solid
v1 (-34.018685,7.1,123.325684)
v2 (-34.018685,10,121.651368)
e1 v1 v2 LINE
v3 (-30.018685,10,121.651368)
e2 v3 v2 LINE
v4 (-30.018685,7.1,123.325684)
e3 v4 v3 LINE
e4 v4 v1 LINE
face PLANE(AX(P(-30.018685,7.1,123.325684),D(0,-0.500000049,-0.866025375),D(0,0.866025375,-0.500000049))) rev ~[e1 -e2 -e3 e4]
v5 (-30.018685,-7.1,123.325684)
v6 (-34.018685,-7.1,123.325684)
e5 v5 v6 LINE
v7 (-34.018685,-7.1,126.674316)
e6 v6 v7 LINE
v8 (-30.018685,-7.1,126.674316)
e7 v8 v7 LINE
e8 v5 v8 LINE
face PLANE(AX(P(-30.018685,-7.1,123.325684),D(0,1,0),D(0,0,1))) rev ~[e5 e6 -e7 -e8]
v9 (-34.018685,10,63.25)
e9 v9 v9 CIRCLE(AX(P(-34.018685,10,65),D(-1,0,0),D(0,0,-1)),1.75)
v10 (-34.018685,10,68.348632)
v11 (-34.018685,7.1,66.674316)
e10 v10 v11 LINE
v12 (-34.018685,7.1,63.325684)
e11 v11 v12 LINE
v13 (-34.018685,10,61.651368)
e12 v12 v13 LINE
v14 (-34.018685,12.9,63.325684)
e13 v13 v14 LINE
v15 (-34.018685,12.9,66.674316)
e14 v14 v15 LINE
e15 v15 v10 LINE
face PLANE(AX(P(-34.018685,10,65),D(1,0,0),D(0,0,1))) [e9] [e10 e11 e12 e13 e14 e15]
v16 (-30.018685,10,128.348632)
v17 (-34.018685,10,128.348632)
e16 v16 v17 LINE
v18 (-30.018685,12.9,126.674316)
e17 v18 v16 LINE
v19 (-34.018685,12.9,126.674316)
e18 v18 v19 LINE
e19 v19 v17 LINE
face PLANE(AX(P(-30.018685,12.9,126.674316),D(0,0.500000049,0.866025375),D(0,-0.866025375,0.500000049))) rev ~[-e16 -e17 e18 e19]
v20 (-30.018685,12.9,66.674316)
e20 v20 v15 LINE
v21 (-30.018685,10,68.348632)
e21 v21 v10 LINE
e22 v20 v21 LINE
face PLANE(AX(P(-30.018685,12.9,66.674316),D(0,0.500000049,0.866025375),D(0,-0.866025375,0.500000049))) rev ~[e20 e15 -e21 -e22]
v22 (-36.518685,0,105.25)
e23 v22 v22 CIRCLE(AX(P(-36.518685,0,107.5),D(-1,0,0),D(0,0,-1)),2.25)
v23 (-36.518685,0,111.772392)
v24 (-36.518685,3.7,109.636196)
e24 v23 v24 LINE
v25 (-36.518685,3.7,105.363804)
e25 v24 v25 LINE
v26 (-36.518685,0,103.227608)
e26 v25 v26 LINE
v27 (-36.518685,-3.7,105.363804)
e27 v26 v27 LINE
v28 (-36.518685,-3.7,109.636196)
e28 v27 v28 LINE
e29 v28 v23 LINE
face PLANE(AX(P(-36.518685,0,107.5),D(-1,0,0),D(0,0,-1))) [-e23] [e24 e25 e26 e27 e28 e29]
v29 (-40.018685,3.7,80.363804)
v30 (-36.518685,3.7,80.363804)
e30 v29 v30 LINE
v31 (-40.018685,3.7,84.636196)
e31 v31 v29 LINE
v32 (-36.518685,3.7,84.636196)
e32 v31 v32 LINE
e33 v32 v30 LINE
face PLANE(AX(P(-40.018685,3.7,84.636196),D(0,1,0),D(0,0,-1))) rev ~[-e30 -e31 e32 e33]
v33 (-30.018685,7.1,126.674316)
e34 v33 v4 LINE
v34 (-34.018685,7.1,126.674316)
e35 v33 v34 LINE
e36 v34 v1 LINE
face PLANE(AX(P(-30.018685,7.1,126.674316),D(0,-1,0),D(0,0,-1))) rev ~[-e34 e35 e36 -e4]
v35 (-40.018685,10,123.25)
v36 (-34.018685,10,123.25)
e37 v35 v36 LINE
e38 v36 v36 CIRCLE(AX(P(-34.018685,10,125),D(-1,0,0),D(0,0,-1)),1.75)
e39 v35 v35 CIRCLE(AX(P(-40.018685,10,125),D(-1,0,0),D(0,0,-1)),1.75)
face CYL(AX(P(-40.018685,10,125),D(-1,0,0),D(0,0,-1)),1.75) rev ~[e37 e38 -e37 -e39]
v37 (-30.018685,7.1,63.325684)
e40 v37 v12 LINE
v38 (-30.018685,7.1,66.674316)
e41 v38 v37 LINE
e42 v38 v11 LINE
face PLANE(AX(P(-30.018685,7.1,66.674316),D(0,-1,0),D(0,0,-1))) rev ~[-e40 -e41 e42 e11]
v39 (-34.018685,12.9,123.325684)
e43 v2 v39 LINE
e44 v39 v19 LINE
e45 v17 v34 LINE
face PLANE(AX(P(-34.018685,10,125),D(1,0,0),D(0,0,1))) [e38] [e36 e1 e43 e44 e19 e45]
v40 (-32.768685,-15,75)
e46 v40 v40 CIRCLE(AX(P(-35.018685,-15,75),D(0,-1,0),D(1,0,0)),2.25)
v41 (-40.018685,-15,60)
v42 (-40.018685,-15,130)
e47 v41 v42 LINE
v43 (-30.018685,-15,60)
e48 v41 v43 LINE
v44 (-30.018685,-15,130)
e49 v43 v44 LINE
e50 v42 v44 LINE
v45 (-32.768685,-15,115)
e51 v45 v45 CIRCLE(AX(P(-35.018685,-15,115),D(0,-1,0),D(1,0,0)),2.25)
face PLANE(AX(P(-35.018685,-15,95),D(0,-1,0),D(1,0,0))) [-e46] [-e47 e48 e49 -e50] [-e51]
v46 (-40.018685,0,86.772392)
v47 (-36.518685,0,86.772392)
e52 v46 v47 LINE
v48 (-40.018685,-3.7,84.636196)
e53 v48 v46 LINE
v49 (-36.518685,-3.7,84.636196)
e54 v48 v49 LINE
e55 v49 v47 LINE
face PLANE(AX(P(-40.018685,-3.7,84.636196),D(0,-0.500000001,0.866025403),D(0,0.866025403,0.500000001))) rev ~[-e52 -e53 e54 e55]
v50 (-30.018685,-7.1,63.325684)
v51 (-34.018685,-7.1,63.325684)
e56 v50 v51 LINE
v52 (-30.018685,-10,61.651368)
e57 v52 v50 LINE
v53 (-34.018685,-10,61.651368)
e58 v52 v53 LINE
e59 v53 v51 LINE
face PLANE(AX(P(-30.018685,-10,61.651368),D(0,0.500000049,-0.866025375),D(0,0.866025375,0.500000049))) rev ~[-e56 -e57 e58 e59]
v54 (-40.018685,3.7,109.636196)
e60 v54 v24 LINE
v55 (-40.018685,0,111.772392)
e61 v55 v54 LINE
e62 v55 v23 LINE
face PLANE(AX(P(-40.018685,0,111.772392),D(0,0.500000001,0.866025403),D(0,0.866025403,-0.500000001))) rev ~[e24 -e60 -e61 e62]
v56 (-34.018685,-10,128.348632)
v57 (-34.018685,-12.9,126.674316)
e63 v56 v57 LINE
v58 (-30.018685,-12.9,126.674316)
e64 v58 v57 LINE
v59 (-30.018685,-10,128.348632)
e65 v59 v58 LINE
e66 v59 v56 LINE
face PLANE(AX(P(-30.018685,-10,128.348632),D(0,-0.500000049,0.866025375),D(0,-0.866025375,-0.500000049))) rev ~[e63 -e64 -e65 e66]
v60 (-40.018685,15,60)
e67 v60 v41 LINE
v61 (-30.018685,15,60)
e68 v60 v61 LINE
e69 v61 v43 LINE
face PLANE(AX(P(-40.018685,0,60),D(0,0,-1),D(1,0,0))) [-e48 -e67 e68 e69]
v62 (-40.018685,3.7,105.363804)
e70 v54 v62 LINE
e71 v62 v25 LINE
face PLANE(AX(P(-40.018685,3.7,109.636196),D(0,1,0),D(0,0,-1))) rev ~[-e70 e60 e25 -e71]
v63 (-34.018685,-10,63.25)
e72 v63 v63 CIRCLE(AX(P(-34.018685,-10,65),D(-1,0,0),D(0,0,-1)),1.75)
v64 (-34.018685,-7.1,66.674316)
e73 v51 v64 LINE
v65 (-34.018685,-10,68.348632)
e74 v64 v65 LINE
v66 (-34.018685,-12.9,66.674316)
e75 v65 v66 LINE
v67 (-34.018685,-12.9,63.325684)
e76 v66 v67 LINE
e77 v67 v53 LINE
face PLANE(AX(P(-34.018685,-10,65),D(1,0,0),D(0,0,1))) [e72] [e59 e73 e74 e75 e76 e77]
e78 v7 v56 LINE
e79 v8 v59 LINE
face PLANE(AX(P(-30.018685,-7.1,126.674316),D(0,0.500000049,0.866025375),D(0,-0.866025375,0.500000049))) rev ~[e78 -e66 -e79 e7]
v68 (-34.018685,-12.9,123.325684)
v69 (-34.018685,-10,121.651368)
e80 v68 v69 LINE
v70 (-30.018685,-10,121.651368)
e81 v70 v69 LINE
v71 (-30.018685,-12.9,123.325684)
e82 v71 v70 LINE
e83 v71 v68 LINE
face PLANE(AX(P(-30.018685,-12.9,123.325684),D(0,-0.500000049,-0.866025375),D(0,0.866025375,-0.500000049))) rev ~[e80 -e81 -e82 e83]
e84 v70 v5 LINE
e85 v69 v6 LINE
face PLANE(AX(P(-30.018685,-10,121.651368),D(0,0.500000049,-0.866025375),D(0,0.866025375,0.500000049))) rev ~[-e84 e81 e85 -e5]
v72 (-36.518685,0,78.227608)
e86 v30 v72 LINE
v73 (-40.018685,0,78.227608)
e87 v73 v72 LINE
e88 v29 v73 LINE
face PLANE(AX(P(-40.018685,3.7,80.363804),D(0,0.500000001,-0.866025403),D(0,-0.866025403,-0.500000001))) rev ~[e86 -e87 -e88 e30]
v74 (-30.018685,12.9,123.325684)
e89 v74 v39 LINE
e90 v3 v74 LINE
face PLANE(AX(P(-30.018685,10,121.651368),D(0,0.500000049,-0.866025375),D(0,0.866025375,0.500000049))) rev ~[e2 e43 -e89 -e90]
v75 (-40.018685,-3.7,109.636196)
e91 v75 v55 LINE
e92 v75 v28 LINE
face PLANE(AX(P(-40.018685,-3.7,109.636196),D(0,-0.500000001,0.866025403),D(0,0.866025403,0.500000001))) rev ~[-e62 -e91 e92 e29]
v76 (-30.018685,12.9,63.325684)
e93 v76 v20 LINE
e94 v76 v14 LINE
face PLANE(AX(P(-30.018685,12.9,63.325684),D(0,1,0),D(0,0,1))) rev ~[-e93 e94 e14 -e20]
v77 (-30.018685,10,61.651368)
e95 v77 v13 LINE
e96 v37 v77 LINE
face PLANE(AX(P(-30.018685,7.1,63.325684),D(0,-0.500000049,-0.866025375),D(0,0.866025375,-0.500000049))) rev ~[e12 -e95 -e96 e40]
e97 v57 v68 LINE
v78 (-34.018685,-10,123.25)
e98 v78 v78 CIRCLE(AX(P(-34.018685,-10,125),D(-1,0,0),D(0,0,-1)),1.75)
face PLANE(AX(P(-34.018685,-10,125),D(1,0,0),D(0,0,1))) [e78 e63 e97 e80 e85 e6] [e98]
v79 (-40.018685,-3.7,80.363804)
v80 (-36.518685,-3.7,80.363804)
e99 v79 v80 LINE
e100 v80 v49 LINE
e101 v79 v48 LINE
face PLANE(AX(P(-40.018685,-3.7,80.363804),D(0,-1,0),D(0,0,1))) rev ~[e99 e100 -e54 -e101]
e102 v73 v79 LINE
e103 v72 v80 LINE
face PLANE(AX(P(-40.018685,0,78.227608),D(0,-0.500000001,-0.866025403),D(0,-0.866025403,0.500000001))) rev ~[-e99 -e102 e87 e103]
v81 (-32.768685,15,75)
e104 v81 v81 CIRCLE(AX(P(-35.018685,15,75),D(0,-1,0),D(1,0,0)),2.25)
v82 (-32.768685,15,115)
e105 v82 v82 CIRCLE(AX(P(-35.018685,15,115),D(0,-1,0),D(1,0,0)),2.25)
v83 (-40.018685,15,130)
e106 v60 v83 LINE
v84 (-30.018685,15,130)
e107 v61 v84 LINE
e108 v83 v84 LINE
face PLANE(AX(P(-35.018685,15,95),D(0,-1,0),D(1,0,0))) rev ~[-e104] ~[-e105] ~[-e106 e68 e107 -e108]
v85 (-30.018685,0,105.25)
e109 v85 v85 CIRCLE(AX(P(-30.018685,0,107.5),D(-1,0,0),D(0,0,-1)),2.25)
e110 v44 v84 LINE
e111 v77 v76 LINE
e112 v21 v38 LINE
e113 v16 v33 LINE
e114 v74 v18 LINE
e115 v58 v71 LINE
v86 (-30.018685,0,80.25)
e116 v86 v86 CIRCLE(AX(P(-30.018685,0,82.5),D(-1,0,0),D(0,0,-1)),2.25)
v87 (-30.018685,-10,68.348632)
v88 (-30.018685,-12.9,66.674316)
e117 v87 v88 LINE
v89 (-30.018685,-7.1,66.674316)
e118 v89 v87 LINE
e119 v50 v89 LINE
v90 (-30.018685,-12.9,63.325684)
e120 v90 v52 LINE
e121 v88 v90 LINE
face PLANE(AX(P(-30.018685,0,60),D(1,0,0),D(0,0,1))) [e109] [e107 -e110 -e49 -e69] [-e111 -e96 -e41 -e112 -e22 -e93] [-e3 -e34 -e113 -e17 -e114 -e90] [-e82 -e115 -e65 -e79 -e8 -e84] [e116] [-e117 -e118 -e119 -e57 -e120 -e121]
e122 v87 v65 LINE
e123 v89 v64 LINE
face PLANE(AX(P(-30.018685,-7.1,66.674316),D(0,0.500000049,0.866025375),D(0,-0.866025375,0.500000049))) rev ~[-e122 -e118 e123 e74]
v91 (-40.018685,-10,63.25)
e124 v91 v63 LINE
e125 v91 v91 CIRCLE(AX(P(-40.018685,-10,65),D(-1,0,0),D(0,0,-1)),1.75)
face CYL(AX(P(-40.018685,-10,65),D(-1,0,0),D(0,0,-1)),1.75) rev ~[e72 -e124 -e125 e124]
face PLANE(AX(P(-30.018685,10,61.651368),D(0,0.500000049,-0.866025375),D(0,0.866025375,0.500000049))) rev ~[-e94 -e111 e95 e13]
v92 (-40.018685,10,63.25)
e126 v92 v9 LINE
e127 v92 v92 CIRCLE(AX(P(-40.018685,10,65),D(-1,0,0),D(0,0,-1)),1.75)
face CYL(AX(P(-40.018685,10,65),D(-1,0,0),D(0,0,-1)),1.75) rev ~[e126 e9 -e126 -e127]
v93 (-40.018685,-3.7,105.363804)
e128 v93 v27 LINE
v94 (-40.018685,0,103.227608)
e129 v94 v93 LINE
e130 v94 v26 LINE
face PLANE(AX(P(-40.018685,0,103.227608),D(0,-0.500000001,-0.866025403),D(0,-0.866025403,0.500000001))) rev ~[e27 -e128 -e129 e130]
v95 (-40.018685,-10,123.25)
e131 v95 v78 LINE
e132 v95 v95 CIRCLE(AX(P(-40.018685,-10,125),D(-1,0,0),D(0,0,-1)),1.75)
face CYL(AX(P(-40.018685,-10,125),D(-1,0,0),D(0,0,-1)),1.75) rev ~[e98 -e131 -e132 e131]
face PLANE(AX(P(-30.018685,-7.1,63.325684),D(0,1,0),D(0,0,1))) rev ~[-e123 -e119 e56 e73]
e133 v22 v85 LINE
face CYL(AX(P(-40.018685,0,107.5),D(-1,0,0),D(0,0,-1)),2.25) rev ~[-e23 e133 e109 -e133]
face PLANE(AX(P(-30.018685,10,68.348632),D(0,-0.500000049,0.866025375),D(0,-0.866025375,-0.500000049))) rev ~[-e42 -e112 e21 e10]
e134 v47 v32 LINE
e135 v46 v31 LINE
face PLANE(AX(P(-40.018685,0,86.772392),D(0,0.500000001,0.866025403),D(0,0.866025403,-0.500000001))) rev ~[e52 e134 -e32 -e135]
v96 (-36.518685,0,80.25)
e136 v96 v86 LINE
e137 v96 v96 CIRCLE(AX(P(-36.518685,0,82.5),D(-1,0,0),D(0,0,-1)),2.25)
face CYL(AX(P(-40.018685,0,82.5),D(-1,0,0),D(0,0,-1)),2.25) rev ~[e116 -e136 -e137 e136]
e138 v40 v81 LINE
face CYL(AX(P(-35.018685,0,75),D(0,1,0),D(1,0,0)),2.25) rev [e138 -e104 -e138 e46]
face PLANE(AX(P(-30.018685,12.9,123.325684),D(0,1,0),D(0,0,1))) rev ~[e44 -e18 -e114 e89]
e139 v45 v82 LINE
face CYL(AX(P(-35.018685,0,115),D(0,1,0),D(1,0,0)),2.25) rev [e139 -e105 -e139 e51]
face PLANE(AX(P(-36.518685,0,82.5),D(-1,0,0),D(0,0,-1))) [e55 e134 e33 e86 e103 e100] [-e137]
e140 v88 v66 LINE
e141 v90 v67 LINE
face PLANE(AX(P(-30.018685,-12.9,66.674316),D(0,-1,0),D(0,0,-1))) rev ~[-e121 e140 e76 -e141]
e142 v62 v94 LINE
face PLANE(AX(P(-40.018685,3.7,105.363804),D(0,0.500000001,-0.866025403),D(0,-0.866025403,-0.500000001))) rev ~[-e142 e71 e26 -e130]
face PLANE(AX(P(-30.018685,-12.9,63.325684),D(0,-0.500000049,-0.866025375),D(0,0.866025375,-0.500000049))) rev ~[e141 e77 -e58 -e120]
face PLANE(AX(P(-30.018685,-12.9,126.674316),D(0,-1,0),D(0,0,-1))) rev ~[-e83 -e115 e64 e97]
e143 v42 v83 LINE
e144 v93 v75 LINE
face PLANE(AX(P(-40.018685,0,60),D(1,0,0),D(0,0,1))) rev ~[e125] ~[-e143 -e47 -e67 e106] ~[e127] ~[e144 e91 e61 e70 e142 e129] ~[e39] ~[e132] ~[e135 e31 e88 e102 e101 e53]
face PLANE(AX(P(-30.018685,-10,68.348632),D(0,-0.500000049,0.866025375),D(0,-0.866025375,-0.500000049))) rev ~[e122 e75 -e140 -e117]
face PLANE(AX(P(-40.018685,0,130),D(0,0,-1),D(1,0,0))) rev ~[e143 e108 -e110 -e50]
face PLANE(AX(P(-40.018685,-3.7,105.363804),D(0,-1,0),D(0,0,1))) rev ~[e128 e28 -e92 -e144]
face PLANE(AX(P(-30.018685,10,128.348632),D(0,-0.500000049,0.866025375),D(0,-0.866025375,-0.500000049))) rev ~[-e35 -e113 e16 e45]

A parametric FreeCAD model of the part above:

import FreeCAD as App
import Part
import Sketcher

V = App.Vector
Q = App.Units.Quantity


def add_polygon(sketch, points):
    """Adds a closed chain of lines whose ends are joined by coincident constraints."""
    first, n = sketch.GeometryCount, len(points)
    for a, b in zip(points, points[1:] + points[:1]):
        sketch.addGeometry(Part.LineSegment(App.Vector(*a, 0), App.Vector(*b, 0)), False)
    for i in range(n):
        sketch.addConstraint(Sketcher.Constraint("Coincident", first + i, 2, first + (i + 1) % n, 1))

doc = App.newDocument("Part")
body = doc.addObject("PartDesign::Body", "Body")

sketch1 = body.newObject("Sketcher::SketchObject", "Sketch")
sketch1.AttachmentSupport = (doc.getObject("XZ_Plane"), [""])
sketch1.MapMode = "FlatFace"
add_polygon(sketch1, [(-5, 40), (-5, -30), (5, -30), (5, 40)])
sketch1.addGeometry(Part.Circle(V(0, -15, 0), V(0, 0, 1), 2.2), False)
sketch1.addGeometry(Part.Circle(V(0, 25, 0), V(0, 0, 1), 2.2), False)
sketch1.addConstraint(Sketcher.Constraint("Vertical", 0))
sketch1.addConstraint(Sketcher.Constraint("Horizontal", 1))
sketch1.addConstraint(Sketcher.Constraint("Vertical", 2))
sketch1.addConstraint(Sketcher.Constraint("Horizontal", 3))
sketch1.addConstraint(Sketcher.Constraint("Equal", 4, 5))
sketch1.addConstraint(Sketcher.Constraint("Vertical", 4, 3, 5, 3))
sketch1.addConstraint(Sketcher.Constraint("Diameter", 4, Q("4.5 mm")))
sketch1.addConstraint(Sketcher.Constraint("DistanceX", 1, 1, 1, 2, Q("10 mm")))
sketch1.addConstraint(Sketcher.Constraint("DistanceY", 0, 2, 0, 1, Q("70 mm")))
sketch1.addConstraint(Sketcher.Constraint("DistanceY", 4, 3, -1, 1, Q("15 mm")))
sketch1.addConstraint(Sketcher.Constraint("DistanceY", -1, 1, 5, 3, Q("25 mm")))
sketch1.addConstraint(Sketcher.Constraint("DistanceY", 0, 2, -1, 1, Q("30 mm")))
sketch1.addConstraint(Sketcher.Constraint("DistanceX", 0, 2, 4, 3, Q("5 mm")))
sketch1.addConstraint(Sketcher.Constraint("DistanceX", 4, 3, -1, 1, Q("0.018685 mm")))
pad1 = body.newObject("PartDesign::Pad", "Pad")
pad1.Profile = sketch1
pad1.Length = 30
pad1.Midplane = True

sketch2 = body.newObject("Sketcher::SketchObject", "Sketch001")
sketch2.AttachmentSupport = (doc.getObject("YZ_Plane"), [""])
sketch2.MapMode = "FlatFace"
sketch2.AttachmentOffset = App.Placement(V(0, 0, -5.018685), App.Rotation())
sketch2.addGeometry(Part.Circle(V(0, 17.5, 0), V(0, 0, 1), 2.2), False)
sketch2.addGeometry(Part.Circle(V(0, -7.5, 0), V(0, 0, 1), 2.2), False)
sketch2.addGeometry(Part.Circle(V(-10, 35, 0), V(0, 0, 1), 1.8), False)
sketch2.addGeometry(Part.Circle(V(10, 35, 0), V(0, 0, 1), 1.8), False)
sketch2.addGeometry(Part.Circle(V(-10, -25, 0), V(0, 0, 1), 1.8), False)
sketch2.addGeometry(Part.Circle(V(10, -25, 0), V(0, 0, 1), 1.8), False)
sketch2.addConstraint(Sketcher.Constraint("Equal", 0, 1))
sketch2.addConstraint(Sketcher.Constraint("Equal", 2, 3))
sketch2.addConstraint(Sketcher.Constraint("Equal", 3, 4))
sketch2.addConstraint(Sketcher.Constraint("Equal", 4, 5))
sketch2.addConstraint(Sketcher.Constraint("Symmetric", 2, 3, 3, 3, -2))
sketch2.addConstraint(Sketcher.Constraint("Symmetric", 4, 3, 5, 3, -2))
sketch2.addConstraint(Sketcher.Constraint("PointOnObject", 0, 3, -2))
sketch2.addConstraint(Sketcher.Constraint("PointOnObject", 1, 3, -2))
sketch2.addConstraint(Sketcher.Constraint("Vertical", 2, 3, 4, 3))
sketch2.addConstraint(Sketcher.Constraint("Diameter", 0, Q("4.5 mm")))
sketch2.addConstraint(Sketcher.Constraint("Diameter", 2, Q("3.5 mm")))
sketch2.addConstraint(Sketcher.Constraint("DistanceX", 2, 3, -1, 1, Q("10 mm")))
sketch2.addConstraint(Sketcher.Constraint("DistanceY", -1, 1, 2, 3, Q("35 mm")))
sketch2.addConstraint(Sketcher.Constraint("DistanceY", 4, 3, -1, 1, Q("25 mm")))
sketch2.addConstraint(Sketcher.Constraint("DistanceY", 1, 3, 0, 3, Q("25 mm")))
sketch2.addConstraint(Sketcher.Constraint("DistanceY", -1, 1, 0, 3, Q("17.5 mm")))
pocket1 = body.newObject("PartDesign::Pocket", "Pocket")
pocket1.Profile = sketch2
pocket1.Length = 25
pocket1.Reversed = True

sketch3 = body.newObject("Sketcher::SketchObject", "Sketch002")
sketch3.AttachmentSupport = (doc.getObject("YZ_Plane"), [""])
sketch3.MapMode = "FlatFace"
sketch3.AttachmentOffset = App.Placement(V(0, 0, -5.018685), App.Rotation())
add_polygon(sketch3, [(-3.7, 15.4), (-3.7, 19.6), (0, 21.8), (3.7, 19.6), (3.7, 15.4), (0, 13.2)])
add_polygon(sketch3, [(-3.7, -9.6), (-3.7, -5.4), (0, -3.2), (3.7, -5.4), (3.7, -9.6), (0, -11.8)])
sketch3.addConstraint(Sketcher.Constraint("Vertical", 0))
sketch3.addConstraint(Sketcher.Constraint("Vertical", 3))
sketch3.addConstraint(Sketcher.Constraint("Vertical", 6))
sketch3.addConstraint(Sketcher.Constraint("Vertical", 9))
sketch3.addConstraint(Sketcher.Constraint("Symmetric", 0, 2, 2, 2, -2))
sketch3.addConstraint(Sketcher.Constraint("Symmetric", 6, 2, 8, 2, -2))
sketch3.addConstraint(Sketcher.Constraint("PointOnObject", 1, 2, -2))
sketch3.addConstraint(Sketcher.Constraint("PointOnObject", 4, 2, -2))
sketch3.addConstraint(Sketcher.Constraint("PointOnObject", 7, 2, -2))
sketch3.addConstraint(Sketcher.Constraint("PointOnObject", 10, 2, -2))
sketch3.addConstraint(Sketcher.Constraint("Parallel", 1, 4))
sketch3.addConstraint(Sketcher.Constraint("Parallel", 2, 5))
sketch3.addConstraint(Sketcher.Constraint("Parallel", 4, 7))
sketch3.addConstraint(Sketcher.Constraint("Parallel", 7, 10))
sketch3.addConstraint(Sketcher.Constraint("Parallel", 8, 11))
sketch3.addConstraint(Sketcher.Constraint("Vertical", 5, 2, 6, 2))
sketch3.addConstraint(Sketcher.Constraint("Equal", 3, 6))
sketch3.addConstraint(Sketcher.Constraint("Angle", 1, Q("30 deg")))
sketch3.addConstraint(Sketcher.Constraint("DistanceY", 6, 2, 0, 2, Q("25 mm")))
sketch3.addConstraint(Sketcher.Constraint("DistanceX", 0, 2, -1, 1, Q("3.7 mm")))
sketch3.addConstraint(Sketcher.Constraint("DistanceY", 0, 1, 0, 2, Q("4.272392 mm")))
sketch3.addConstraint(Sketcher.Constraint("DistanceY", -1, 1, 1, 2, Q("21.772392 mm")))
pocket2 = body.newObject("PartDesign::Pocket", "Pocket001")
pocket2.Profile = sketch3
pocket2.Length = 3.5
pocket2.Reversed = True

sketch4 = body.newObject("Sketcher::SketchObject", "Sketch003")
sketch4.AttachmentSupport = (doc.getObject("YZ_Plane"), [""])
sketch4.MapMode = "FlatFace"
sketch4.AttachmentOffset = App.Placement(V(0, 0, 4.981315), App.Rotation())
add_polygon(sketch4, [(-12.9, 36.7), (-12.9, 33.3), (-10, 31.7), (-7.1, 33.3), (-7.1, 36.7), (-10, 38.3)])
add_polygon(sketch4, [(7.1, 36.7), (7.1, 33.3), (10, 31.7), (12.9, 33.3), (12.9, 36.7), (10, 38.3)])
add_polygon(sketch4, [(7.1, -23.3), (7.1, -26.7), (10, -28.3), (12.9, -26.7), (12.9, -23.3), (10, -21.7)])
add_polygon(sketch4, [(-10, -21.7), (-12.9, -23.3), (-12.9, -26.7), (-10, -28.3), (-7.1, -26.7), (-7.1, -23.3)])
sketch4.addConstraint(Sketcher.Constraint("Vertical", 0))
sketch4.addConstraint(Sketcher.Constraint("Vertical", 3))
sketch4.addConstraint(Sketcher.Constraint("Vertical", 6))
sketch4.addConstraint(Sketcher.Constraint("Vertical", 9))
sketch4.addConstraint(Sketcher.Constraint("Vertical", 12))
sketch4.addConstraint(Sketcher.Constraint("Vertical", 15))
sketch4.addConstraint(Sketcher.Constraint("Vertical", 19))
sketch4.addConstraint(Sketcher.Constraint("Vertical", 22))
sketch4.addConstraint(Sketcher.Constraint("Symmetric", 2, 2, 6, 2, -2))
sketch4.addConstraint(Sketcher.Constraint("Symmetric", 1, 2, 7, 2, -2))
sketch4.addConstraint(Sketcher.Constraint("Symmetric", 0, 2, 8, 2, -2))
sketch4.addConstraint(Sketcher.Constraint("Symmetric", 4, 2, 10, 2, -2))
sketch4.addConstraint(Sketcher.Constraint("Symmetric", 15, 2, 18, 2, -2))
sketch4.addConstraint(Sketcher.Constraint("Symmetric", 13, 2, 20, 2, -2))
sketch4.addConstraint(Sketcher.Constraint("Symmetric", 12, 2, 21, 2, -2))
sketch4.addConstraint(Sketcher.Constraint("Symmetric", 16, 2, 23, 2, -2))
sketch4.addConstraint(Sketcher.Constraint("Parallel", 1, 4))
sketch4.addConstraint(Sketcher.Constraint("Parallel", 2, 5))
sketch4.addConstraint(Sketcher.Constraint("Parallel", 4, 7))
sketch4.addConstraint(Sketcher.Constraint("Parallel", 7, 10))
sketch4.addConstraint(Sketcher.Constraint("Parallel", 8, 11))
sketch4.addConstraint(Sketcher.Constraint("Parallel", 10, 13))
sketch4.addConstraint(Sketcher.Constraint("Parallel", 11, 14))
sketch4.addConstraint(Sketcher.Constraint("Parallel", 13, 16))
sketch4.addConstraint(Sketcher.Constraint("Parallel", 14, 17))
sketch4.addConstraint(Sketcher.Constraint("Parallel", 16, 20))
sketch4.addConstraint(Sketcher.Constraint("Parallel", 20, 23))
sketch4.addConstraint(Sketcher.Constraint("Horizontal", 0, 2, 2, 2))
sketch4.addConstraint(Sketcher.Constraint("Horizontal", 3, 2, 5, 2))
sketch4.addConstraint(Sketcher.Constraint("Horizontal", 12, 2, 14, 2))
sketch4.addConstraint(Sketcher.Constraint("Horizontal", 15, 2, 17, 2))
sketch4.addConstraint(Sketcher.Constraint("Vertical", 11, 2, 12, 2))
sketch4.addConstraint(Sketcher.Constraint("Vertical", 10, 2, 13, 2))
sketch4.addConstraint(Sketcher.Constraint("Equal", 9, 12))
sketch4.addConstraint(Sketcher.Constraint("Angle", 1, Q("-30.000003 deg")))
sketch4.addConstraint(Sketcher.Constraint("DistanceX", 1, 2, -1, 1, Q("10 mm")))
sketch4.addConstraint(Sketcher.Constraint("DistanceY", 12, 2, 6, 2, Q("60 mm")))
sketch4.addConstraint(Sketcher.Constraint("DistanceX", 0, 2, -1, 1, Q("12.9 mm")))
sketch4.addConstraint(Sketcher.Constraint("DistanceY", 0, 2, 0, 1, Q("3.348632 mm")))
sketch4.addConstraint(Sketcher.Constraint("DistanceY", -1, 1, 1, 2, Q("31.651368 mm")))
pocket3 = body.newObject("PartDesign::Pocket", "Pocket002")
pocket3.Profile = sketch4
pocket3.Length = 4
body2 = doc.addObject("PartDesign::Body", "Body001")
doc.recompute()

body.Placement = App.Placement(V(-35, 0, 90), App.Rotation(V(0, 0, 1), 0))
boolean = body2.newObject("PartDesign::Boolean", "Boolean")
boolean.Type = "Fuse"
boolean.addObjects([body])

doc.recompute()
